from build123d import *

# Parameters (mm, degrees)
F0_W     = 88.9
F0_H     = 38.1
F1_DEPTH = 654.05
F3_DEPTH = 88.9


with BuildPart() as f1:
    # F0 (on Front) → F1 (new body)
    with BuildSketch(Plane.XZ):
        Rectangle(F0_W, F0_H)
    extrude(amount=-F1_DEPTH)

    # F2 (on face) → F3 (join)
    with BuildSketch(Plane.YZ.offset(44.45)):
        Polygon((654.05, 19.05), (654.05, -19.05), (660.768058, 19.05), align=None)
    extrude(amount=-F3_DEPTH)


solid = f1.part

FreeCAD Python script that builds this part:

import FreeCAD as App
import Part
import Sketcher
from FreeCAD import Vector
Q = App.Units.Quantity


def add_polygon(sketch, points):
    """Adds a closed chain of lines whose ends are joined by coincident constraints."""
    first, n = sketch.GeometryCount, len(points)
    for a, b in zip(points, points[1:] + points[:1]):
        sketch.addGeometry(Part.LineSegment(App.Vector(*a, 0), App.Vector(*b, 0)), False)
    for i in range(n):
        sketch.addConstraint(Sketcher.Constraint("Coincident", first + i, 2, first + (i + 1) % n, 1))

doc = App.newDocument("Part")
body = doc.addObject("PartDesign::Body", "Body")

sketch1 = body.newObject("Sketcher::SketchObject", "Sketch")
sketch1.AttachmentSupport = (doc.getObject("XZ_Plane"), [""])
sketch1.MapMode = "FlatFace"
add_polygon(sketch1, [(-44, 19), (-44, -19), (44, -19), (44, 19)])
sketch1.addConstraint([
    Sketcher.Constraint("Vertical", 0),
    Sketcher.Constraint("Horizontal", 1),
    Sketcher.Constraint("Vertical", 2),
    Sketcher.Constraint("Horizontal", 3),
    Sketcher.Constraint("Symmetric", 0, 2, 2, 2, -1, 1),
    Sketcher.Constraint("DistanceX", 1, 1, 1, 2, Q("3.5 in")),
    Sketcher.Constraint("DistanceY", 0, 2, 0, 1, Q("1.5 in")),
])
pad1 = body.newObject("PartDesign::Pad", "Pad")
pad1.Profile = sketch1
pad1.Length = Q("25.75 in")
pad1.Reversed = True

sketch2 = body.newObject("Sketcher::SketchObject", "Sketch001")
sketch2.AttachmentSupport = (doc.getObject("YZ_Plane"), [""])
sketch2.MapMode = "FlatFace"
sketch2.AttachmentOffset = App.Placement(Vector(0, 0, 1.75 * 25.4), App.Rotation())
add_polygon(sketch2, [(654, 19), (654, -19), (661, 19)])
sketch2.addConstraint([
    Sketcher.Constraint("Vertical", 0),
    Sketcher.Constraint("Horizontal", 2),
    Sketcher.Constraint("DistanceY", 0, 2, 0, 1, Q("1.5 in")),
    Sketcher.Constraint("Angle", 1, Q("80 deg")),
    Sketcher.Constraint("DistanceX", -1, 1, 0, 2, Q("25.75 in")),
    Sketcher.Constraint("DistanceY", 0, 2, -1, 1, Q("0.75 in")),
])
pad2 = body.newObject("PartDesign::Pad", "Pad001")
pad2.Profile = sketch2
pad2.Length = Q("3.5 in")
pad2.Reversed = True

doc.recompute()
